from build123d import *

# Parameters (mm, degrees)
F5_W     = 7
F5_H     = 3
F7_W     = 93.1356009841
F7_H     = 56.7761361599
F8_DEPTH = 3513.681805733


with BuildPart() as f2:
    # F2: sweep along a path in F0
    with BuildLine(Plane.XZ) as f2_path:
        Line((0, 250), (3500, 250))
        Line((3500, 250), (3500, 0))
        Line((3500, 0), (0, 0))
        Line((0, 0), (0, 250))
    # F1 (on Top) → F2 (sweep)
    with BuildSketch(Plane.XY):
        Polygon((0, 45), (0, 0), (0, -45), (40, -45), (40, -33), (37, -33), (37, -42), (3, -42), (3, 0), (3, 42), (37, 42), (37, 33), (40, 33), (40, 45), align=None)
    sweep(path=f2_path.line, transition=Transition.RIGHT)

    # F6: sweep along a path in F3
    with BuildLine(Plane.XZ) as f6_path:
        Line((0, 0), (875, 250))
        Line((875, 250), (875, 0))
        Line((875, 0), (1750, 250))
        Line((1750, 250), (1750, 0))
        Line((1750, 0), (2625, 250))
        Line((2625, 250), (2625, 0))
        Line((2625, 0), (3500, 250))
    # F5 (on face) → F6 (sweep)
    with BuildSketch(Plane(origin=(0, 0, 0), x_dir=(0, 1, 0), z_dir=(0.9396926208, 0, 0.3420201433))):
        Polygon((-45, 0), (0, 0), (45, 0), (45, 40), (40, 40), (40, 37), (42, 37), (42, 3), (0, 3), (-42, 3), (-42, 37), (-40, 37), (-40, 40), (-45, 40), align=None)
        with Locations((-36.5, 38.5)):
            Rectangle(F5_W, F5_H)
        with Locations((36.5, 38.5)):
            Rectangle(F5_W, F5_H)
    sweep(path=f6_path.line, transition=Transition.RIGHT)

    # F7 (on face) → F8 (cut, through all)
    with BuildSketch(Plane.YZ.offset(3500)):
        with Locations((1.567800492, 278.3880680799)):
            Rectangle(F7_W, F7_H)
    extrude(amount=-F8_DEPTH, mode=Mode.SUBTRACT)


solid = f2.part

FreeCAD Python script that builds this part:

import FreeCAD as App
import Part
import Sketcher

V = App.Vector
Q = App.Units.Quantity

doc = App.newDocument("Part")
body = doc.addObject("PartDesign::Body", "Body")

sketch1 = doc.addObject("Sketcher::SketchObject", "Sketch")
body.addObject(sketch1)
sketch1.AttachmentSupport = (doc.XY_Plane, [""])
sketch1.MapMode = "FlatFace"
sketch1.addGeometry(Part.LineSegment(V(0, 45, 0), V(0, -45, 0)), False)
sketch1.addGeometry(Part.LineSegment(V(0, -45, 0), V(40, -45, 0)), False)
sketch1.addGeometry(Part.LineSegment(V(40, -45, 0), V(40, -33, 0)), False)
sketch1.addGeometry(Part.LineSegment(V(40, -33, 0), V(37, -33, 0)), False)
sketch1.addGeometry(Part.LineSegment(V(37, -33, 0), V(37, -42, 0)), False)
sketch1.addGeometry(Part.LineSegment(V(37, -42, 0), V(3, -42, 0)), False)
sketch1.addGeometry(Part.LineSegment(V(3, -42, 0), V(3, 42, 0)), False)
sketch1.addGeometry(Part.LineSegment(V(3, 42, 0), V(37, 42, 0)), False)
sketch1.addGeometry(Part.LineSegment(V(37, 42, 0), V(37, 33, 0)), False)
sketch1.addGeometry(Part.LineSegment(V(37, 33, 0), V(40, 33, 0)), False)
sketch1.addGeometry(Part.LineSegment(V(40, 33, 0), V(40, 45, 0)), False)
sketch1.addGeometry(Part.LineSegment(V(40, 45, 0), V(0, 45, 0)), False)
sketch1.addConstraint(Sketcher.Constraint("Coincident", 0, 2, 1, 1))
sketch1.addConstraint(Sketcher.Constraint("Coincident", 1, 2, 2, 1))
sketch1.addConstraint(Sketcher.Constraint("Coincident", 2, 2, 3, 1))
sketch1.addConstraint(Sketcher.Constraint("Coincident", 3, 2, 4, 1))
sketch1.addConstraint(Sketcher.Constraint("Coincident", 4, 2, 5, 1))
sketch1.addConstraint(Sketcher.Constraint("Coincident", 5, 2, 6, 1))
sketch1.addConstraint(Sketcher.Constraint("Coincident", 6, 2, 7, 1))
sketch1.addConstraint(Sketcher.Constraint("Coincident", 7, 2, 8, 1))
sketch1.addConstraint(Sketcher.Constraint("Coincident", 8, 2, 9, 1))
sketch1.addConstraint(Sketcher.Constraint("Coincident", 9, 2, 10, 1))
sketch1.addConstraint(Sketcher.Constraint("Coincident", 10, 2, 11, 1))
sketch1.addConstraint(Sketcher.Constraint("Coincident", 11, 2, 0, 1))
sketch1.addConstraint(Sketcher.Constraint("Vertical", 0))
sketch1.addConstraint(Sketcher.Constraint("Horizontal", 1))
sketch1.addConstraint(Sketcher.Constraint("Vertical", 2))
sketch1.addConstraint(Sketcher.Constraint("Horizontal", 3))
sketch1.addConstraint(Sketcher.Constraint("Vertical", 4))
sketch1.addConstraint(Sketcher.Constraint("Horizontal", 5))
sketch1.addConstraint(Sketcher.Constraint("Vertical", 6))
sketch1.addConstraint(Sketcher.Constraint("Horizontal", 7))
sketch1.addConstraint(Sketcher.Constraint("Vertical", 8))
sketch1.addConstraint(Sketcher.Constraint("Horizontal", 9))
sketch1.addConstraint(Sketcher.Constraint("Vertical", 10))
sketch1.addConstraint(Sketcher.Constraint("Horizontal", 11))
sketch1.addConstraint(Sketcher.Constraint("Symmetric", 0, 2, 11, 2, -1, 1))
sketch1.addConstraint(Sketcher.Constraint("Symmetric", 4, 2, 7, 2, -1))
sketch1.addConstraint(Sketcher.Constraint("Symmetric", 2, 2, 9, 2, -1))
sketch1.addConstraint(Sketcher.Constraint("DistanceX", 1, 1, 1, 2, Q("40 mm")))
sketch1.addConstraint(Sketcher.Constraint("DistanceX", 3, 2, 3, 1, Q("3 mm")))
sketch1.addConstraint(Sketcher.Constraint("DistanceX", 5, 2, 5, 1, Q("34 mm")))
sketch1.addConstraint(Sketcher.Constraint("DistanceY", 0, 2, 0, 1, Q("90 mm")))
sketch1.addConstraint(Sketcher.Constraint("DistanceY", 2, 1, 2, 2, Q("12 mm")))
sketch1.addConstraint(Sketcher.Constraint("DistanceY", 4, 2, 4, 1, Q("9 mm")))

sketch2 = doc.addObject("Sketcher::SketchObject", "Sketch001")
body.addObject(sketch2)
sketch2.AttachmentSupport = (doc.XZ_Plane, [""])
sketch2.MapMode = "FlatFace"
sketch2.addGeometry(Part.LineSegment(V(0, 250, 0), V(3500, 250, 0)), False)
sketch2.addGeometry(Part.LineSegment(V(3500, 250, 0), V(3500, 0, 0)), False)
sketch2.addGeometry(Part.LineSegment(V(3500, 0, 0), V(0, 0, 0)), False)
sketch2.addGeometry(Part.LineSegment(V(0, 0, 0), V(0, 250, 0)), False)
sketch2.addConstraint(Sketcher.Constraint("Coincident", 0, 2, 1, 1))
sketch2.addConstraint(Sketcher.Constraint("Coincident", 1, 2, 2, 1))
sketch2.addConstraint(Sketcher.Constraint("Coincident", 2, 2, 3, 1))
sketch2.addConstraint(Sketcher.Constraint("Coincident", 3, 2, 0, 1))
sketch2.addConstraint(Sketcher.Constraint("Horizontal", 0))
sketch2.addConstraint(Sketcher.Constraint("Vertical", 1))
sketch2.addConstraint(Sketcher.Constraint("Horizontal", 2))
sketch2.addConstraint(Sketcher.Constraint("Vertical", 3))
sketch2.addConstraint(Sketcher.Constraint("Coincident", 2, 2, -1, 1))
sketch2.addConstraint(Sketcher.Constraint("DistanceX", 0, 1, 0, 2, Q("3500 mm")))
sketch2.addConstraint(Sketcher.Constraint("DistanceY", 1, 2, 1, 1, Q("250 mm")))
doc.recompute()

additivepipe = doc.addObject("PartDesign::AdditivePipe", "AdditivePipe")
body.addObject(additivepipe)
additivepipe.Profile = sketch1
additivepipe.Spine = (sketch2, ["Edge1", "Edge2", "Edge3", "Edge4"])
additivepipe.Transition = "Right corner"

sketch3 = doc.addObject("Sketcher::SketchObject", "Sketch002")
body.addObject(sketch3)
sketch3.Placement = App.Placement(V(0, 0, 0), App.Rotation(V(0, 1, 0), V(-0.342020143, 0, 0.939692621), V(0.939692621, 0, 0.342020143), "ZXY"))
sketch3.addGeometry(Part.LineSegment(V(-45, 0, 0), V(45, 0, 0)), False)
sketch3.addGeometry(Part.LineSegment(V(45, 0, 0), V(45, 40, 0)), False)
sketch3.addGeometry(Part.LineSegment(V(45, 40, 0), V(33, 40, 0)), False)
sketch3.addGeometry(Part.LineSegment(V(33, 40, 0), V(33, 37, 0)), False)
sketch3.addGeometry(Part.LineSegment(V(33, 37, 0), V(42, 37, 0)), False)
sketch3.addGeometry(Part.LineSegment(V(42, 37, 0), V(42, 3, 0)), False)
sketch3.addGeometry(Part.LineSegment(V(42, 3, 0), V(-42, 3, 0)), False)
sketch3.addGeometry(Part.LineSegment(V(-42, 3, 0), V(-42, 37, 0)), False)
sketch3.addGeometry(Part.LineSegment(V(-42, 37, 0), V(-33, 37, 0)), False)
sketch3.addGeometry(Part.LineSegment(V(-33, 37, 0), V(-33, 40, 0)), False)
sketch3.addGeometry(Part.LineSegment(V(-33, 40, 0), V(-45, 40, 0)), False)
sketch3.addGeometry(Part.LineSegment(V(-45, 40, 0), V(-45, 0, 0)), False)
sketch3.addConstraint(Sketcher.Constraint("Coincident", 0, 2, 1, 1))
sketch3.addConstraint(Sketcher.Constraint("Coincident", 1, 2, 2, 1))
sketch3.addConstraint(Sketcher.Constraint("Coincident", 2, 2, 3, 1))
sketch3.addConstraint(Sketcher.Constraint("Coincident", 3, 2, 4, 1))
sketch3.addConstraint(Sketcher.Constraint("Coincident", 4, 2, 5, 1))
sketch3.addConstraint(Sketcher.Constraint("Coincident", 5, 2, 6, 1))
sketch3.addConstraint(Sketcher.Constraint("Coincident", 6, 2, 7, 1))
sketch3.addConstraint(Sketcher.Constraint("Coincident", 7, 2, 8, 1))
sketch3.addConstraint(Sketcher.Constraint("Coincident", 8, 2, 9, 1))
sketch3.addConstraint(Sketcher.Constraint("Coincident", 9, 2, 10, 1))
sketch3.addConstraint(Sketcher.Constraint("Coincident", 10, 2, 11, 1))
sketch3.addConstraint(Sketcher.Constraint("Coincident", 11, 2, 0, 1))
sketch3.addConstraint(Sketcher.Constraint("Horizontal", 0))
sketch3.addConstraint(Sketcher.Constraint("Vertical", 1))
sketch3.addConstraint(Sketcher.Constraint("Horizontal", 2))
sketch3.addConstraint(Sketcher.Constraint("Vertical", 3))
sketch3.addConstraint(Sketcher.Constraint("Horizontal", 4))
sketch3.addConstraint(Sketcher.Constraint("Vertical", 5))
sketch3.addConstraint(Sketcher.Constraint("Horizontal", 6))
sketch3.addConstraint(Sketcher.Constraint("Vertical", 7))
sketch3.addConstraint(Sketcher.Constraint("Horizontal", 8))
sketch3.addConstraint(Sketcher.Constraint("Vertical", 9))
sketch3.addConstraint(Sketcher.Constraint("Horizontal", 10))
sketch3.addConstraint(Sketcher.Constraint("Vertical", 11))
sketch3.addConstraint(Sketcher.Constraint("Symmetric", 0, 2, 11, 2, -1, 1))
sketch3.addConstraint(Sketcher.Constraint("Symmetric", 4, 2, 7, 2, -2))
sketch3.addConstraint(Sketcher.Constraint("Symmetric", 2, 2, 9, 2, -2))
sketch3.addConstraint(Sketcher.Constraint("DistanceX", 0, 1, 0, 2, Q("90 mm")))
sketch3.addConstraint(Sketcher.Constraint("DistanceX", 2, 2, 2, 1, Q("12 mm")))
sketch3.addConstraint(Sketcher.Constraint("DistanceX", 4, 1, 4, 2, Q("9 mm")))
sketch3.addConstraint(Sketcher.Constraint("DistanceY", 1, 1, 1, 2, Q("40 mm")))
sketch3.addConstraint(Sketcher.Constraint("DistanceY", 3, 2, 3, 1, Q("3 mm")))
sketch3.addConstraint(Sketcher.Constraint("DistanceY", 5, 2, 5, 1, Q("34 mm")))

sketch4 = doc.addObject("Sketcher::SketchObject", "Sketch003")
body.addObject(sketch4)
sketch4.AttachmentSupport = (doc.XZ_Plane, [""])
sketch4.MapMode = "FlatFace"
sketch4.addGeometry(Part.LineSegment(V(0, 0, 0), V(875, 250, 0)), False)
sketch4.addGeometry(Part.LineSegment(V(875, 250, 0), V(875, 0, 0)), False)
sketch4.addGeometry(Part.LineSegment(V(875, 0, 0), V(1750, 250, 0)), False)
sketch4.addGeometry(Part.LineSegment(V(1750, 250, 0), V(1750, 0, 0)), False)
sketch4.addGeometry(Part.LineSegment(V(1750, 0, 0), V(2625, 250, 0)), False)
sketch4.addGeometry(Part.LineSegment(V(2625, 250, 0), V(2625, 0, 0)), False)
sketch4.addGeometry(Part.LineSegment(V(2625, 0, 0), V(3500, 250, 0)), False)
sketch4.addConstraint(Sketcher.Constraint("Coincident", 0, 2, 1, 1))
sketch4.addConstraint(Sketcher.Constraint("Coincident", 1, 2, 2, 1))
sketch4.addConstraint(Sketcher.Constraint("Coincident", 2, 2, 3, 1))
sketch4.addConstraint(Sketcher.Constraint("Coincident", 3, 2, 4, 1))
sketch4.addConstraint(Sketcher.Constraint("Coincident", 4, 2, 5, 1))
sketch4.addConstraint(Sketcher.Constraint("Coincident", 5, 2, 6, 1))
sketch4.addConstraint(Sketcher.Constraint("Vertical", 1))
sketch4.addConstraint(Sketcher.Constraint("Vertical", 3))
sketch4.addConstraint(Sketcher.Constraint("Vertical", 5))
sketch4.addConstraint(Sketcher.Constraint("Coincident", 0, 1, -1, 1))
sketch4.addConstraint(Sketcher.Constraint("PointOnObject", 1, 2, -1))
sketch4.addConstraint(Sketcher.Constraint("PointOnObject", 3, 2, -1))
sketch4.addConstraint(Sketcher.Constraint("PointOnObject", 5, 2, -1))
sketch4.addConstraint(Sketcher.Constraint("Parallel", 0, 2))
sketch4.addConstraint(Sketcher.Constraint("Parallel", 2, 4))
sketch4.addConstraint(Sketcher.Constraint("Parallel", 4, 6))
sketch4.addConstraint(Sketcher.Constraint("Horizontal", 0, 2, 2, 2))
sketch4.addConstraint(Sketcher.Constraint("Horizontal", 2, 2, 4, 2))
sketch4.addConstraint(Sketcher.Constraint("Horizontal", 4, 2, 6, 2))
sketch4.addConstraint(Sketcher.Constraint("DistanceY", 1, 2, 1, 1, Q("250 mm")))
sketch4.addConstraint(Sketcher.Constraint("DistanceX", -1, 1, 0, 2, Q("875 mm")))
doc.recompute()

additivepipe2 = doc.addObject("PartDesign::AdditivePipe", "AdditivePipe001")
body.addObject(additivepipe2)
additivepipe2.Profile = sketch3
additivepipe2.Spine = (sketch4, ["Edge1", "Edge2", "Edge3", "Edge4", "Edge5", "Edge6", "Edge7"])
additivepipe2.Transition = "Right corner"

sketch5 = doc.addObject("Sketcher::SketchObject", "Sketch004")
body.addObject(sketch5)
sketch5.AttachmentSupport = (doc.YZ_Plane, [""])
sketch5.MapMode = "FlatFace"
sketch5.AttachmentOffset = App.Placement(V(0, 0, 3500), App.Rotation())
sketch5.addGeometry(Part.LineSegment(V(-45, 307, 0), V(-45, 250, 0)), False)
sketch5.addGeometry(Part.LineSegment(V(-45, 250, 0), V(48, 250, 0)), False)
sketch5.addGeometry(Part.LineSegment(V(48, 250, 0), V(48, 307, 0)), False)
sketch5.addGeometry(Part.LineSegment(V(48, 307, 0), V(-45, 307, 0)), False)
sketch5.addConstraint(Sketcher.Constraint("Coincident", 0, 2, 1, 1))
sketch5.addConstraint(Sketcher.Constraint("Coincident", 1, 2, 2, 1))
sketch5.addConstraint(Sketcher.Constraint("Coincident", 2, 2, 3, 1))
sketch5.addConstraint(Sketcher.Constraint("Coincident", 3, 2, 0, 1))
sketch5.addConstraint(Sketcher.Constraint("Vertical", 0))
sketch5.addConstraint(Sketcher.Constraint("Horizontal", 1))
sketch5.addConstraint(Sketcher.Constraint("Vertical", 2))
sketch5.addConstraint(Sketcher.Constraint("Horizontal", 3))
sketch5.addConstraint(Sketcher.Constraint("DistanceX", 0, 2, -1, 1, Q("45 mm")))
sketch5.addConstraint(Sketcher.Constraint("DistanceY", -1, 1, 0, 2, Q("250 mm")))
sketch5.addConstraint(Sketcher.Constraint("DistanceX", 1, 1, 1, 2, Q("93.135601 mm")))
sketch5.addConstraint(Sketcher.Constraint("DistanceY", 0, 2, 0, 1, Q("56.776136 mm")))
pocket1 = doc.addObject("PartDesign::Pocket", "Pocket")
body.addObject(pocket1)
pocket1.Profile = sketch5
pocket1.Type = "ThroughAll"

doc.recompute()
